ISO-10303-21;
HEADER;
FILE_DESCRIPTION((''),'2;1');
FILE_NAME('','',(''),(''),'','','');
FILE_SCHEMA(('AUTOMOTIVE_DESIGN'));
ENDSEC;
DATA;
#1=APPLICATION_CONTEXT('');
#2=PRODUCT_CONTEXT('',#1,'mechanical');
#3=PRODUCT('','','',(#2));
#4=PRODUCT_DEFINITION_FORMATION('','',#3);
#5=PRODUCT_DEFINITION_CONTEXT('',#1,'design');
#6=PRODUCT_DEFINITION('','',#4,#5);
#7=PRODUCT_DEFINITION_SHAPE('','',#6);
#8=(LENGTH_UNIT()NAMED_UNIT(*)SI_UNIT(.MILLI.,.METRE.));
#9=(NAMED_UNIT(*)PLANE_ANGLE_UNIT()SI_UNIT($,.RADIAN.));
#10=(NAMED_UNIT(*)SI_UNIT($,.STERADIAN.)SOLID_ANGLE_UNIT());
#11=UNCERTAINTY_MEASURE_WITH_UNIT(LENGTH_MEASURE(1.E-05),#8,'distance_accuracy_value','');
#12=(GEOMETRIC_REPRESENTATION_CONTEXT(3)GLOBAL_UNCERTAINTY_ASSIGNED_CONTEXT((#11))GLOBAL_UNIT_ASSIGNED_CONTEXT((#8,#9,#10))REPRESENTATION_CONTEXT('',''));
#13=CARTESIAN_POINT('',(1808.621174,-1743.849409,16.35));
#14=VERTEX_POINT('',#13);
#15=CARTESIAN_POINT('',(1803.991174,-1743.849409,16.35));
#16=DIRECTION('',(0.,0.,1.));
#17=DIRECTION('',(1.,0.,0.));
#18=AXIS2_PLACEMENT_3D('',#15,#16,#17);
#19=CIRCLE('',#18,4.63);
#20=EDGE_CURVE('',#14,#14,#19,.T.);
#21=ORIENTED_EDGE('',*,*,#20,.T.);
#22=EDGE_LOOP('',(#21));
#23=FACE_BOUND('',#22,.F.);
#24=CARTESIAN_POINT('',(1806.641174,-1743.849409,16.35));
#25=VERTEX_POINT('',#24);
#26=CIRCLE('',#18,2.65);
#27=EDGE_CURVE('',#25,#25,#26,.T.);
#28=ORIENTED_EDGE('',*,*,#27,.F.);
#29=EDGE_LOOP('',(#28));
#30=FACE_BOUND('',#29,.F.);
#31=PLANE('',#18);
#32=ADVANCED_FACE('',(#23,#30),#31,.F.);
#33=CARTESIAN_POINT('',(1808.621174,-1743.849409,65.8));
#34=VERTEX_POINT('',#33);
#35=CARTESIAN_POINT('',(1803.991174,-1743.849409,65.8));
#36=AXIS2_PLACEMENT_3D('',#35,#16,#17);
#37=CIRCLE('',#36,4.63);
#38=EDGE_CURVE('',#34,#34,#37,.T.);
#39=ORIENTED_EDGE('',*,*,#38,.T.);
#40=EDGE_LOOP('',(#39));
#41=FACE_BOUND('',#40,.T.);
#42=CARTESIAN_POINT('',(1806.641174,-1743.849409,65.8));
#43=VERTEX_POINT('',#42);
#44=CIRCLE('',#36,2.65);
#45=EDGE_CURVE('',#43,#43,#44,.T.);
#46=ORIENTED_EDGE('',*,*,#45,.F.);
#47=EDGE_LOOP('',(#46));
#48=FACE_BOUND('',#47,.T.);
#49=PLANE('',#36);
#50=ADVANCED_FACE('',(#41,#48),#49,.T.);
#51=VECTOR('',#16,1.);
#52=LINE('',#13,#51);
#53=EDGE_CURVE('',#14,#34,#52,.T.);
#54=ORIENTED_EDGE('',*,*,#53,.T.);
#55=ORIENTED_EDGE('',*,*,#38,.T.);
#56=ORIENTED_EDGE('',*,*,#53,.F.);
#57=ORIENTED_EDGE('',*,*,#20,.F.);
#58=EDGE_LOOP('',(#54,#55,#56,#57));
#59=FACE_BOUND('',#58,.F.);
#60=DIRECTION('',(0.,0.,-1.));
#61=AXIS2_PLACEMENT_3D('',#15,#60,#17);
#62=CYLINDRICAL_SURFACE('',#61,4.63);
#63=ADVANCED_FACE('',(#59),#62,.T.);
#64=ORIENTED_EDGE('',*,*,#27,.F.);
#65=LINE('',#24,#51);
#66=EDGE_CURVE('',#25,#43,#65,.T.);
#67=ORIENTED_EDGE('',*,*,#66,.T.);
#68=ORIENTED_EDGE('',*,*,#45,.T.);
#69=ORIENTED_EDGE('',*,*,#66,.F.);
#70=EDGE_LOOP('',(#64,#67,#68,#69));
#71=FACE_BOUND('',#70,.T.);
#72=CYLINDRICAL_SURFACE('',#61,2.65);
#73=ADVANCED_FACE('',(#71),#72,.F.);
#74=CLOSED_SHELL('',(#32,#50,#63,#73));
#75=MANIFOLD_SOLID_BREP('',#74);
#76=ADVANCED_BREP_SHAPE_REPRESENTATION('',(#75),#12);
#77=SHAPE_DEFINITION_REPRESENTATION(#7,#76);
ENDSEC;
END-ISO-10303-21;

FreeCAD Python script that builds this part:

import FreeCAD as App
import Part
import Sketcher
Q = App.Units.Quantity

doc = App.newDocument("Part")
body = doc.addObject("PartDesign::Body", "Body")

sketch1 = body.newObject("Sketcher::SketchObject", "Sketch")
sketch1.AttachmentSupport = (doc.getObject("XY_Plane"), [""])
sketch1.MapMode = "FlatFace"
sketch1.AttachmentOffset = App.Placement(App.Vector(0, 0, 16.35), App.Rotation())
sketch1.addGeometry([
    Part.Circle(App.Vector(1804, -1743.8, 0), App.Vector(0, 0, 1), 4.6),
    Part.Circle(App.Vector(1804, -1743.8, 0), App.Vector(0, 0, 1), 2.6),
], False)
sketch1.addConstraint([
    Sketcher.Constraint("Coincident", 1, 3, 0, 3),
    Sketcher.Constraint("Diameter", 1, Q("5.3 mm")),
    Sketcher.Constraint("Diameter", 0, Q("9.26 mm")),
    Sketcher.Constraint("DistanceY", 0, 3, -1, 1, Q("1743.849409 mm")),
    Sketcher.Constraint("DistanceX", -1, 1, 0, 3, Q("1803.991174 mm")),
])
pad1 = body.newObject("PartDesign::Pad", "Pad")
pad1.Profile = sketch1
pad1.Length = 49.45

doc.recompute()
